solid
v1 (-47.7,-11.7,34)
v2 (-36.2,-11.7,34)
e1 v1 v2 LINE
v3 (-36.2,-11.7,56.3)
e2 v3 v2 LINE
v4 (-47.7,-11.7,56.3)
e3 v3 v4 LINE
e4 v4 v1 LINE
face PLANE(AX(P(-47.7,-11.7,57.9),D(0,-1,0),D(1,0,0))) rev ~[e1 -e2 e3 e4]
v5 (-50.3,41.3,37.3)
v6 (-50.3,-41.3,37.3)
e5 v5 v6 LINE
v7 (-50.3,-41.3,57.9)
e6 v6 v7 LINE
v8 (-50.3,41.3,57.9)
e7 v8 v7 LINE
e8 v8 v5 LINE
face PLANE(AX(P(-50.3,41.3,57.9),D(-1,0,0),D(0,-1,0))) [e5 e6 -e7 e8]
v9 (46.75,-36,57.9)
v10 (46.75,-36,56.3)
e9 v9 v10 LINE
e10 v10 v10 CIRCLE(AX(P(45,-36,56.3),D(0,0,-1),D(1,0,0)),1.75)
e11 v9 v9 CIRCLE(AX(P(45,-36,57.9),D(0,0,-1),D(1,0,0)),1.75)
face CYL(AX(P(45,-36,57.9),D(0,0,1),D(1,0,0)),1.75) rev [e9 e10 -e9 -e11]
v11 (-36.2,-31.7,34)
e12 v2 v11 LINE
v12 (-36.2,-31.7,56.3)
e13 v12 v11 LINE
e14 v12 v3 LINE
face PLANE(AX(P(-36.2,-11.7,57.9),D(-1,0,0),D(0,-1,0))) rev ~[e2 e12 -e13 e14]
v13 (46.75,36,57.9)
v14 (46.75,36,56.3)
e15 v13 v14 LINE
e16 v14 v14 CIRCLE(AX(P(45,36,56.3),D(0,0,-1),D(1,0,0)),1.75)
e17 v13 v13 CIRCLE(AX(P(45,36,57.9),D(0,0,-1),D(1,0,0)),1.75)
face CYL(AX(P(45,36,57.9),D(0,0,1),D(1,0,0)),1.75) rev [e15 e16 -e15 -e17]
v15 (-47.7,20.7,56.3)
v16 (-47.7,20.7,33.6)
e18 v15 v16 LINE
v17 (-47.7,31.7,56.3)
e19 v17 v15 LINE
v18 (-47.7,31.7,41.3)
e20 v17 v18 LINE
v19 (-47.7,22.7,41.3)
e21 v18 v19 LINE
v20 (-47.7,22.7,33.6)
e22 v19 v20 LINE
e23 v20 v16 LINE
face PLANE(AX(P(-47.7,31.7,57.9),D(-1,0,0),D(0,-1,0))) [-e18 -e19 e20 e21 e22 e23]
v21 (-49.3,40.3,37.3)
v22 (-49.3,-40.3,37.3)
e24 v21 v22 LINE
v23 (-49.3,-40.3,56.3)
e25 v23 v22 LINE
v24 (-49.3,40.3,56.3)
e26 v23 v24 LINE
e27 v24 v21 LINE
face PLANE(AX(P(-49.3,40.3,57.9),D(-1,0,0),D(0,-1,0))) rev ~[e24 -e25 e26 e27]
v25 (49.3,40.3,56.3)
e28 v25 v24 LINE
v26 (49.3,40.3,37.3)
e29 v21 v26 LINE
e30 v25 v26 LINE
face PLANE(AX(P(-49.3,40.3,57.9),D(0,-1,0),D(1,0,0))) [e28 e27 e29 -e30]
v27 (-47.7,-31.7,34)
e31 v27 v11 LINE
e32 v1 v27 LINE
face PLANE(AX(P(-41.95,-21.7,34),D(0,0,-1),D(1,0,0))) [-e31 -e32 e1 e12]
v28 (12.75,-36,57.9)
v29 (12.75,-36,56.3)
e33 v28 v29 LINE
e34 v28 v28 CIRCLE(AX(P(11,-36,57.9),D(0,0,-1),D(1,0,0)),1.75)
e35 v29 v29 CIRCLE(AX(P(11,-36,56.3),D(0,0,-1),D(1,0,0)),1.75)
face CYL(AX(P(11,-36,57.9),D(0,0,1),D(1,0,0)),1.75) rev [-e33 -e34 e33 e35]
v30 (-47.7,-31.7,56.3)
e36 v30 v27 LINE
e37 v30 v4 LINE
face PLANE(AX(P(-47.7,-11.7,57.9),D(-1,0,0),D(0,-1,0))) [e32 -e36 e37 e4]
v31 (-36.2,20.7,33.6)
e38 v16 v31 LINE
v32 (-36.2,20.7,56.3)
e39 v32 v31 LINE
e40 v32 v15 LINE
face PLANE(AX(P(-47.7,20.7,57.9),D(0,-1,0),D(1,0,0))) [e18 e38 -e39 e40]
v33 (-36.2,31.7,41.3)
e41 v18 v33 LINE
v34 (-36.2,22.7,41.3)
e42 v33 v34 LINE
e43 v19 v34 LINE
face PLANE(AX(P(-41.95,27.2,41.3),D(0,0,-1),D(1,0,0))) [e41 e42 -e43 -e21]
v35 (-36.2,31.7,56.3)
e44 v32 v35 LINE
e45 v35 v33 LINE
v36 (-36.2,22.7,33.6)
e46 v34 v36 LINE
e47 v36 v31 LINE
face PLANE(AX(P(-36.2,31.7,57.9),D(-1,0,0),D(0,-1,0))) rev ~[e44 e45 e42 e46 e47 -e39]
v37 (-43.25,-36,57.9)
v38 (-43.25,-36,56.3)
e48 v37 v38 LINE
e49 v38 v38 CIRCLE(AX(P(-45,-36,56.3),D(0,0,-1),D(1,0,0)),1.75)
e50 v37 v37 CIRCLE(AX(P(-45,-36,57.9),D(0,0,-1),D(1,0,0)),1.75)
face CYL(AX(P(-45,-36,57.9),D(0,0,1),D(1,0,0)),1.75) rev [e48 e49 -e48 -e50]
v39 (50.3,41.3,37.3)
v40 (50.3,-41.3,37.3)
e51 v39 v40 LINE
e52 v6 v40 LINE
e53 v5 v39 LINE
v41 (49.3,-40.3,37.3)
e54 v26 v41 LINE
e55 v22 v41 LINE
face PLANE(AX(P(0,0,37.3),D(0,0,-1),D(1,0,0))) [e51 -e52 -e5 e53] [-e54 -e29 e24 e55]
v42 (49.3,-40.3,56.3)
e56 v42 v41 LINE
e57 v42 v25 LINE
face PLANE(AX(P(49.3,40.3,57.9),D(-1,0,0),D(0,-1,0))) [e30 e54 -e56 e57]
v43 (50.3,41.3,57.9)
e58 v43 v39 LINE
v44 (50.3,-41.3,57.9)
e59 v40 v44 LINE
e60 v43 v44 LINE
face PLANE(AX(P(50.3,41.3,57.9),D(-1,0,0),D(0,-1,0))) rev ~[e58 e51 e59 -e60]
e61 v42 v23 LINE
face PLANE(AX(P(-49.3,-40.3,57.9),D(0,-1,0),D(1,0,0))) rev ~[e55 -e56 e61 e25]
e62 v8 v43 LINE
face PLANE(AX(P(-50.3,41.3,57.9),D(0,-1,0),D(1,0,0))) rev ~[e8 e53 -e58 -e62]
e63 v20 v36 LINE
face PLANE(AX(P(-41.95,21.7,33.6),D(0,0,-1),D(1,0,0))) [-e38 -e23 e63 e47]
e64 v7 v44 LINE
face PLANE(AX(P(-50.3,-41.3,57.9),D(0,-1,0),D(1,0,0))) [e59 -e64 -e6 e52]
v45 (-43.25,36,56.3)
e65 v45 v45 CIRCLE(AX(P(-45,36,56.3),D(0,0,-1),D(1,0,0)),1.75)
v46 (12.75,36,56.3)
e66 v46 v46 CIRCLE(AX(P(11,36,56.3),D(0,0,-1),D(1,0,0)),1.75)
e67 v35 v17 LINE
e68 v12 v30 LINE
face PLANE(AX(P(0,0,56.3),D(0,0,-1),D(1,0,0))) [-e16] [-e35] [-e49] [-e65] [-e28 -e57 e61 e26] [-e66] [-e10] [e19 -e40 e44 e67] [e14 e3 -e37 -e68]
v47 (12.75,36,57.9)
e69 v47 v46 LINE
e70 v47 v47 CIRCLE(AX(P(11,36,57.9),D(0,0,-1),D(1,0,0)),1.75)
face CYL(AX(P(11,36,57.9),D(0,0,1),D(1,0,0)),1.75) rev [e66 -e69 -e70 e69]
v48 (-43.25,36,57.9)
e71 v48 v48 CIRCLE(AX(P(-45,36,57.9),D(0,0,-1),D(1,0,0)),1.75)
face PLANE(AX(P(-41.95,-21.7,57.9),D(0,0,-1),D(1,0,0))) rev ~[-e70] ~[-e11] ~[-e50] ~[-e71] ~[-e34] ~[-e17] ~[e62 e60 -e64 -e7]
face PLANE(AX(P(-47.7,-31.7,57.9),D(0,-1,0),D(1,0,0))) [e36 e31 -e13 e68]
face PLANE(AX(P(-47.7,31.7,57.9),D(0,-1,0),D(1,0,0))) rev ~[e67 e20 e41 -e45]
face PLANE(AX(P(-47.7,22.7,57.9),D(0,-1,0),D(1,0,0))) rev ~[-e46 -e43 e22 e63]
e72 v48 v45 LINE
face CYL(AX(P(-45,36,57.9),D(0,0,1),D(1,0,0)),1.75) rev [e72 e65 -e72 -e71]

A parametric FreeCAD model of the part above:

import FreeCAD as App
import Part
import Sketcher
Q = App.Units.Quantity


def add_polygon(sketch, points):
    """Adds a closed chain of lines whose ends are joined by coincident constraints."""
    first, n = sketch.GeometryCount, len(points)
    for a, b in zip(points, points[1:] + points[:1]):
        sketch.addGeometry(Part.LineSegment(App.Vector(*a, 0), App.Vector(*b, 0)), False)
    for i in range(n):
        sketch.addConstraint(Sketcher.Constraint("Coincident", first + i, 2, first + (i + 1) % n, 1))

doc = App.newDocument("Part")
body = doc.addObject("PartDesign::Body", "Body")

sketch1 = body.newObject("Sketcher::SketchObject", "Sketch")
sketch1.AttachmentSupport = (doc.getObject("XY_Plane"), [""])
sketch1.MapMode = "FlatFace"
add_polygon(sketch1, [(-50, 41), (-50, -41), (50, -41), (50, 41)])
sketch1.addConstraint([
    Sketcher.Constraint("Vertical", 0),
    Sketcher.Constraint("Horizontal", 1),
    Sketcher.Constraint("Vertical", 2),
    Sketcher.Constraint("Horizontal", 3),
    Sketcher.Constraint("Symmetric", 0, 2, 2, 2, -1, 1),
    Sketcher.Constraint("DistanceX", 1, 1, 1, 2, Q("100.6 mm")),
    Sketcher.Constraint("DistanceY", 0, 2, 0, 1, Q("82.6 mm")),
])
pad1 = body.newObject("PartDesign::Pad", "Pad")
pad1.Profile = sketch1
pad1.Length = 1.6

sketch2 = body.newObject("Sketcher::SketchObject", "Sketch001")
sketch2.AttachmentSupport = (doc.getObject("XY_Plane"), [""])
sketch2.MapMode = "FlatFace"
add_polygon(sketch2, [(-50, 41), (-50, -41), (50, -41), (50, 41)])
add_polygon(sketch2, [(49, -40), (-49, -40), (-49, 40), (49, 40)])
sketch2.addConstraint([
    Sketcher.Constraint("Vertical", 0),
    Sketcher.Constraint("Horizontal", 1),
    Sketcher.Constraint("Vertical", 2),
    Sketcher.Constraint("Horizontal", 3),
    Sketcher.Constraint("Horizontal", 4),
    Sketcher.Constraint("Vertical", 5),
    Sketcher.Constraint("Horizontal", 6),
    Sketcher.Constraint("Vertical", 7),
    Sketcher.Constraint("Symmetric", 0, 2, 2, 2, -1, 1),
    Sketcher.Constraint("Symmetric", 4, 2, 6, 2, -1, 1),
    Sketcher.Constraint("DistanceX", 1, 1, 1, 2, Q("100.6 mm")),
    Sketcher.Constraint("DistanceX", 4, 2, 4, 1, Q("98.6 mm")),
    Sketcher.Constraint("DistanceY", 0, 2, 0, 1, Q("82.6 mm")),
    Sketcher.Constraint("DistanceY", 5, 1, 5, 2, Q("80.6 mm")),
])
pad2 = body.newObject("PartDesign::Pad", "Pad001")
pad2.Profile = sketch2
pad2.Length = 20.6

sketch3 = body.newObject("Sketcher::SketchObject", "Sketch002")
sketch3.AttachmentSupport = (doc.getObject("XY_Plane"), [""])
sketch3.MapMode = "FlatFace"
add_polygon(sketch3, [(-48, -23), (-48, -32), (-36, -32), (-36, -23)])
sketch3.addConstraint([
    Sketcher.Constraint("Vertical", 0),
    Sketcher.Constraint("Horizontal", 1),
    Sketcher.Constraint("Vertical", 2),
    Sketcher.Constraint("Horizontal", 3),
    Sketcher.Constraint("DistanceY", 0, 2, 0, 1, Q("9 mm")),
    Sketcher.Constraint("DistanceX", 1, 1, 1, 2, Q("11.5 mm")),
    Sketcher.Constraint("DistanceX", 0, 2, -1, 1, Q("47.7 mm")),
    Sketcher.Constraint("DistanceY", 0, 2, -1, 1, Q("31.7 mm")),
])
pad3 = body.newObject("PartDesign::Pad", "Pad002")
pad3.Profile = sketch3
pad3.Length = 16.6

sketch4 = body.newObject("Sketcher::SketchObject", "Sketch003")
sketch4.AttachmentSupport = (doc.getObject("XY_Plane"), [""])
sketch4.MapMode = "FlatFace"
add_polygon(sketch4, [(-47.7, -20.7), (-47.7, -22.7), (-36.2, -22.7), (-36.2, -20.7)])
sketch4.addConstraint([
    Sketcher.Constraint("Vertical", 0),
    Sketcher.Constraint("Horizontal", 1),
    Sketcher.Constraint("Vertical", 2),
    Sketcher.Constraint("Horizontal", 3),
    Sketcher.Constraint("DistanceY", 0, 2, 0, 1, Q("2 mm")),
    Sketcher.Constraint("DistanceX", 1, 1, 1, 2, Q("11.5 mm")),
    Sketcher.Constraint("DistanceX", 0, 2, -1, 1, Q("47.7 mm")),
    Sketcher.Constraint("DistanceY", 0, 2, -1, 1, Q("22.7 mm")),
])
pad4 = body.newObject("PartDesign::Pad", "Pad003")
pad4.Profile = sketch4
pad4.Length = 24.3

sketch5 = body.newObject("Sketcher::SketchObject", "Sketch004")
sketch5.AttachmentSupport = (doc.getObject("XY_Plane"), [""])
sketch5.MapMode = "FlatFace"
sketch5.addGeometry([
    Part.Circle(App.Vector(-45, 36, 0), App.Vector(0, 0, 1), 1.8),
    Part.Circle(App.Vector(11, 36, 0), App.Vector(0, 0, 1), 1.8),
    Part.Circle(App.Vector(45, 36, 0), App.Vector(0, 0, 1), 1.8),
    Part.Circle(App.Vector(45, -36, 0), App.Vector(0, 0, 1), 1.8),
    Part.Circle(App.Vector(11, -36, 0), App.Vector(0, 0, 1), 1.8),
    Part.Circle(App.Vector(-45, -36, 0), App.Vector(0, 0, 1), 1.8),
], False)
sketch5.addConstraint([
    Sketcher.Constraint("Equal", 0, 1),
    Sketcher.Constraint("Equal", 1, 2),
    Sketcher.Constraint("Equal", 2, 3),
    Sketcher.Constraint("Equal", 3, 4),
    Sketcher.Constraint("Equal", 4, 5),
    Sketcher.Constraint("Symmetric", 0, 3, 3, 3, -1, 1),
    Sketcher.Constraint("Symmetric", 2, 3, 5, 3, -1, 1),
    Sketcher.Constraint("Symmetric", 0, 3, 2, 3, -2),
    Sketcher.Constraint("Symmetric", 1, 3, 4, 3, -1),
    Sketcher.Constraint("Horizontal", 0, 3, 1, 3),
    Sketcher.Constraint("Diameter", 0, Q("3.5 mm")),
    Sketcher.Constraint("DistanceX", 0, 3, -1, 1, Q("45 mm")),
    Sketcher.Constraint("DistanceY", -1, 1, 0, 3, Q("36 mm")),
    Sketcher.Constraint("DistanceX", -1, 1, 1, 3, Q("11 mm")),
])
pocket1 = body.newObject("PartDesign::Pocket", "Pocket")
pocket1.Profile = sketch5
pocket1.Length = 1.6
pocket1.Reversed = True

sketch6 = body.newObject("Sketcher::SketchObject", "Sketch005")
sketch6.AttachmentSupport = (doc.getObject("XY_Plane"), [""])
sketch6.MapMode = "FlatFace"
add_polygon(sketch6, [(-48, 32), (-48, 12), (-36, 12), (-36, 32)])
sketch6.addConstraint([
    Sketcher.Constraint("Vertical", 0),
    Sketcher.Constraint("Horizontal", 1),
    Sketcher.Constraint("Vertical", 2),
    Sketcher.Constraint("Horizontal", 3),
    Sketcher.Constraint("DistanceY", 0, 2, 0, 1, Q("20 mm")),
    Sketcher.Constraint("DistanceX", 1, 1, 1, 2, Q("11.5 mm")),
    Sketcher.Constraint("DistanceX", 0, 2, -1, 1, Q("47.7 mm")),
    Sketcher.Constraint("DistanceY", -1, 1, 0, 2, Q("11.7 mm")),
])
pad5 = body.newObject("PartDesign::Pad", "Pad004")
pad5.Profile = sketch6
pad5.Length = 23.9
body2 = doc.addObject("PartDesign::Body", "Body001")
doc.recompute()

body.Placement = App.Placement(App.Vector(0, 0, 57.9), App.Rotation(App.Vector(1, 0, 0), 180))
boolean = body2.newObject("PartDesign::Boolean", "Boolean")
boolean.Type = "Fuse"
boolean.addObjects([body])

doc.recompute()
